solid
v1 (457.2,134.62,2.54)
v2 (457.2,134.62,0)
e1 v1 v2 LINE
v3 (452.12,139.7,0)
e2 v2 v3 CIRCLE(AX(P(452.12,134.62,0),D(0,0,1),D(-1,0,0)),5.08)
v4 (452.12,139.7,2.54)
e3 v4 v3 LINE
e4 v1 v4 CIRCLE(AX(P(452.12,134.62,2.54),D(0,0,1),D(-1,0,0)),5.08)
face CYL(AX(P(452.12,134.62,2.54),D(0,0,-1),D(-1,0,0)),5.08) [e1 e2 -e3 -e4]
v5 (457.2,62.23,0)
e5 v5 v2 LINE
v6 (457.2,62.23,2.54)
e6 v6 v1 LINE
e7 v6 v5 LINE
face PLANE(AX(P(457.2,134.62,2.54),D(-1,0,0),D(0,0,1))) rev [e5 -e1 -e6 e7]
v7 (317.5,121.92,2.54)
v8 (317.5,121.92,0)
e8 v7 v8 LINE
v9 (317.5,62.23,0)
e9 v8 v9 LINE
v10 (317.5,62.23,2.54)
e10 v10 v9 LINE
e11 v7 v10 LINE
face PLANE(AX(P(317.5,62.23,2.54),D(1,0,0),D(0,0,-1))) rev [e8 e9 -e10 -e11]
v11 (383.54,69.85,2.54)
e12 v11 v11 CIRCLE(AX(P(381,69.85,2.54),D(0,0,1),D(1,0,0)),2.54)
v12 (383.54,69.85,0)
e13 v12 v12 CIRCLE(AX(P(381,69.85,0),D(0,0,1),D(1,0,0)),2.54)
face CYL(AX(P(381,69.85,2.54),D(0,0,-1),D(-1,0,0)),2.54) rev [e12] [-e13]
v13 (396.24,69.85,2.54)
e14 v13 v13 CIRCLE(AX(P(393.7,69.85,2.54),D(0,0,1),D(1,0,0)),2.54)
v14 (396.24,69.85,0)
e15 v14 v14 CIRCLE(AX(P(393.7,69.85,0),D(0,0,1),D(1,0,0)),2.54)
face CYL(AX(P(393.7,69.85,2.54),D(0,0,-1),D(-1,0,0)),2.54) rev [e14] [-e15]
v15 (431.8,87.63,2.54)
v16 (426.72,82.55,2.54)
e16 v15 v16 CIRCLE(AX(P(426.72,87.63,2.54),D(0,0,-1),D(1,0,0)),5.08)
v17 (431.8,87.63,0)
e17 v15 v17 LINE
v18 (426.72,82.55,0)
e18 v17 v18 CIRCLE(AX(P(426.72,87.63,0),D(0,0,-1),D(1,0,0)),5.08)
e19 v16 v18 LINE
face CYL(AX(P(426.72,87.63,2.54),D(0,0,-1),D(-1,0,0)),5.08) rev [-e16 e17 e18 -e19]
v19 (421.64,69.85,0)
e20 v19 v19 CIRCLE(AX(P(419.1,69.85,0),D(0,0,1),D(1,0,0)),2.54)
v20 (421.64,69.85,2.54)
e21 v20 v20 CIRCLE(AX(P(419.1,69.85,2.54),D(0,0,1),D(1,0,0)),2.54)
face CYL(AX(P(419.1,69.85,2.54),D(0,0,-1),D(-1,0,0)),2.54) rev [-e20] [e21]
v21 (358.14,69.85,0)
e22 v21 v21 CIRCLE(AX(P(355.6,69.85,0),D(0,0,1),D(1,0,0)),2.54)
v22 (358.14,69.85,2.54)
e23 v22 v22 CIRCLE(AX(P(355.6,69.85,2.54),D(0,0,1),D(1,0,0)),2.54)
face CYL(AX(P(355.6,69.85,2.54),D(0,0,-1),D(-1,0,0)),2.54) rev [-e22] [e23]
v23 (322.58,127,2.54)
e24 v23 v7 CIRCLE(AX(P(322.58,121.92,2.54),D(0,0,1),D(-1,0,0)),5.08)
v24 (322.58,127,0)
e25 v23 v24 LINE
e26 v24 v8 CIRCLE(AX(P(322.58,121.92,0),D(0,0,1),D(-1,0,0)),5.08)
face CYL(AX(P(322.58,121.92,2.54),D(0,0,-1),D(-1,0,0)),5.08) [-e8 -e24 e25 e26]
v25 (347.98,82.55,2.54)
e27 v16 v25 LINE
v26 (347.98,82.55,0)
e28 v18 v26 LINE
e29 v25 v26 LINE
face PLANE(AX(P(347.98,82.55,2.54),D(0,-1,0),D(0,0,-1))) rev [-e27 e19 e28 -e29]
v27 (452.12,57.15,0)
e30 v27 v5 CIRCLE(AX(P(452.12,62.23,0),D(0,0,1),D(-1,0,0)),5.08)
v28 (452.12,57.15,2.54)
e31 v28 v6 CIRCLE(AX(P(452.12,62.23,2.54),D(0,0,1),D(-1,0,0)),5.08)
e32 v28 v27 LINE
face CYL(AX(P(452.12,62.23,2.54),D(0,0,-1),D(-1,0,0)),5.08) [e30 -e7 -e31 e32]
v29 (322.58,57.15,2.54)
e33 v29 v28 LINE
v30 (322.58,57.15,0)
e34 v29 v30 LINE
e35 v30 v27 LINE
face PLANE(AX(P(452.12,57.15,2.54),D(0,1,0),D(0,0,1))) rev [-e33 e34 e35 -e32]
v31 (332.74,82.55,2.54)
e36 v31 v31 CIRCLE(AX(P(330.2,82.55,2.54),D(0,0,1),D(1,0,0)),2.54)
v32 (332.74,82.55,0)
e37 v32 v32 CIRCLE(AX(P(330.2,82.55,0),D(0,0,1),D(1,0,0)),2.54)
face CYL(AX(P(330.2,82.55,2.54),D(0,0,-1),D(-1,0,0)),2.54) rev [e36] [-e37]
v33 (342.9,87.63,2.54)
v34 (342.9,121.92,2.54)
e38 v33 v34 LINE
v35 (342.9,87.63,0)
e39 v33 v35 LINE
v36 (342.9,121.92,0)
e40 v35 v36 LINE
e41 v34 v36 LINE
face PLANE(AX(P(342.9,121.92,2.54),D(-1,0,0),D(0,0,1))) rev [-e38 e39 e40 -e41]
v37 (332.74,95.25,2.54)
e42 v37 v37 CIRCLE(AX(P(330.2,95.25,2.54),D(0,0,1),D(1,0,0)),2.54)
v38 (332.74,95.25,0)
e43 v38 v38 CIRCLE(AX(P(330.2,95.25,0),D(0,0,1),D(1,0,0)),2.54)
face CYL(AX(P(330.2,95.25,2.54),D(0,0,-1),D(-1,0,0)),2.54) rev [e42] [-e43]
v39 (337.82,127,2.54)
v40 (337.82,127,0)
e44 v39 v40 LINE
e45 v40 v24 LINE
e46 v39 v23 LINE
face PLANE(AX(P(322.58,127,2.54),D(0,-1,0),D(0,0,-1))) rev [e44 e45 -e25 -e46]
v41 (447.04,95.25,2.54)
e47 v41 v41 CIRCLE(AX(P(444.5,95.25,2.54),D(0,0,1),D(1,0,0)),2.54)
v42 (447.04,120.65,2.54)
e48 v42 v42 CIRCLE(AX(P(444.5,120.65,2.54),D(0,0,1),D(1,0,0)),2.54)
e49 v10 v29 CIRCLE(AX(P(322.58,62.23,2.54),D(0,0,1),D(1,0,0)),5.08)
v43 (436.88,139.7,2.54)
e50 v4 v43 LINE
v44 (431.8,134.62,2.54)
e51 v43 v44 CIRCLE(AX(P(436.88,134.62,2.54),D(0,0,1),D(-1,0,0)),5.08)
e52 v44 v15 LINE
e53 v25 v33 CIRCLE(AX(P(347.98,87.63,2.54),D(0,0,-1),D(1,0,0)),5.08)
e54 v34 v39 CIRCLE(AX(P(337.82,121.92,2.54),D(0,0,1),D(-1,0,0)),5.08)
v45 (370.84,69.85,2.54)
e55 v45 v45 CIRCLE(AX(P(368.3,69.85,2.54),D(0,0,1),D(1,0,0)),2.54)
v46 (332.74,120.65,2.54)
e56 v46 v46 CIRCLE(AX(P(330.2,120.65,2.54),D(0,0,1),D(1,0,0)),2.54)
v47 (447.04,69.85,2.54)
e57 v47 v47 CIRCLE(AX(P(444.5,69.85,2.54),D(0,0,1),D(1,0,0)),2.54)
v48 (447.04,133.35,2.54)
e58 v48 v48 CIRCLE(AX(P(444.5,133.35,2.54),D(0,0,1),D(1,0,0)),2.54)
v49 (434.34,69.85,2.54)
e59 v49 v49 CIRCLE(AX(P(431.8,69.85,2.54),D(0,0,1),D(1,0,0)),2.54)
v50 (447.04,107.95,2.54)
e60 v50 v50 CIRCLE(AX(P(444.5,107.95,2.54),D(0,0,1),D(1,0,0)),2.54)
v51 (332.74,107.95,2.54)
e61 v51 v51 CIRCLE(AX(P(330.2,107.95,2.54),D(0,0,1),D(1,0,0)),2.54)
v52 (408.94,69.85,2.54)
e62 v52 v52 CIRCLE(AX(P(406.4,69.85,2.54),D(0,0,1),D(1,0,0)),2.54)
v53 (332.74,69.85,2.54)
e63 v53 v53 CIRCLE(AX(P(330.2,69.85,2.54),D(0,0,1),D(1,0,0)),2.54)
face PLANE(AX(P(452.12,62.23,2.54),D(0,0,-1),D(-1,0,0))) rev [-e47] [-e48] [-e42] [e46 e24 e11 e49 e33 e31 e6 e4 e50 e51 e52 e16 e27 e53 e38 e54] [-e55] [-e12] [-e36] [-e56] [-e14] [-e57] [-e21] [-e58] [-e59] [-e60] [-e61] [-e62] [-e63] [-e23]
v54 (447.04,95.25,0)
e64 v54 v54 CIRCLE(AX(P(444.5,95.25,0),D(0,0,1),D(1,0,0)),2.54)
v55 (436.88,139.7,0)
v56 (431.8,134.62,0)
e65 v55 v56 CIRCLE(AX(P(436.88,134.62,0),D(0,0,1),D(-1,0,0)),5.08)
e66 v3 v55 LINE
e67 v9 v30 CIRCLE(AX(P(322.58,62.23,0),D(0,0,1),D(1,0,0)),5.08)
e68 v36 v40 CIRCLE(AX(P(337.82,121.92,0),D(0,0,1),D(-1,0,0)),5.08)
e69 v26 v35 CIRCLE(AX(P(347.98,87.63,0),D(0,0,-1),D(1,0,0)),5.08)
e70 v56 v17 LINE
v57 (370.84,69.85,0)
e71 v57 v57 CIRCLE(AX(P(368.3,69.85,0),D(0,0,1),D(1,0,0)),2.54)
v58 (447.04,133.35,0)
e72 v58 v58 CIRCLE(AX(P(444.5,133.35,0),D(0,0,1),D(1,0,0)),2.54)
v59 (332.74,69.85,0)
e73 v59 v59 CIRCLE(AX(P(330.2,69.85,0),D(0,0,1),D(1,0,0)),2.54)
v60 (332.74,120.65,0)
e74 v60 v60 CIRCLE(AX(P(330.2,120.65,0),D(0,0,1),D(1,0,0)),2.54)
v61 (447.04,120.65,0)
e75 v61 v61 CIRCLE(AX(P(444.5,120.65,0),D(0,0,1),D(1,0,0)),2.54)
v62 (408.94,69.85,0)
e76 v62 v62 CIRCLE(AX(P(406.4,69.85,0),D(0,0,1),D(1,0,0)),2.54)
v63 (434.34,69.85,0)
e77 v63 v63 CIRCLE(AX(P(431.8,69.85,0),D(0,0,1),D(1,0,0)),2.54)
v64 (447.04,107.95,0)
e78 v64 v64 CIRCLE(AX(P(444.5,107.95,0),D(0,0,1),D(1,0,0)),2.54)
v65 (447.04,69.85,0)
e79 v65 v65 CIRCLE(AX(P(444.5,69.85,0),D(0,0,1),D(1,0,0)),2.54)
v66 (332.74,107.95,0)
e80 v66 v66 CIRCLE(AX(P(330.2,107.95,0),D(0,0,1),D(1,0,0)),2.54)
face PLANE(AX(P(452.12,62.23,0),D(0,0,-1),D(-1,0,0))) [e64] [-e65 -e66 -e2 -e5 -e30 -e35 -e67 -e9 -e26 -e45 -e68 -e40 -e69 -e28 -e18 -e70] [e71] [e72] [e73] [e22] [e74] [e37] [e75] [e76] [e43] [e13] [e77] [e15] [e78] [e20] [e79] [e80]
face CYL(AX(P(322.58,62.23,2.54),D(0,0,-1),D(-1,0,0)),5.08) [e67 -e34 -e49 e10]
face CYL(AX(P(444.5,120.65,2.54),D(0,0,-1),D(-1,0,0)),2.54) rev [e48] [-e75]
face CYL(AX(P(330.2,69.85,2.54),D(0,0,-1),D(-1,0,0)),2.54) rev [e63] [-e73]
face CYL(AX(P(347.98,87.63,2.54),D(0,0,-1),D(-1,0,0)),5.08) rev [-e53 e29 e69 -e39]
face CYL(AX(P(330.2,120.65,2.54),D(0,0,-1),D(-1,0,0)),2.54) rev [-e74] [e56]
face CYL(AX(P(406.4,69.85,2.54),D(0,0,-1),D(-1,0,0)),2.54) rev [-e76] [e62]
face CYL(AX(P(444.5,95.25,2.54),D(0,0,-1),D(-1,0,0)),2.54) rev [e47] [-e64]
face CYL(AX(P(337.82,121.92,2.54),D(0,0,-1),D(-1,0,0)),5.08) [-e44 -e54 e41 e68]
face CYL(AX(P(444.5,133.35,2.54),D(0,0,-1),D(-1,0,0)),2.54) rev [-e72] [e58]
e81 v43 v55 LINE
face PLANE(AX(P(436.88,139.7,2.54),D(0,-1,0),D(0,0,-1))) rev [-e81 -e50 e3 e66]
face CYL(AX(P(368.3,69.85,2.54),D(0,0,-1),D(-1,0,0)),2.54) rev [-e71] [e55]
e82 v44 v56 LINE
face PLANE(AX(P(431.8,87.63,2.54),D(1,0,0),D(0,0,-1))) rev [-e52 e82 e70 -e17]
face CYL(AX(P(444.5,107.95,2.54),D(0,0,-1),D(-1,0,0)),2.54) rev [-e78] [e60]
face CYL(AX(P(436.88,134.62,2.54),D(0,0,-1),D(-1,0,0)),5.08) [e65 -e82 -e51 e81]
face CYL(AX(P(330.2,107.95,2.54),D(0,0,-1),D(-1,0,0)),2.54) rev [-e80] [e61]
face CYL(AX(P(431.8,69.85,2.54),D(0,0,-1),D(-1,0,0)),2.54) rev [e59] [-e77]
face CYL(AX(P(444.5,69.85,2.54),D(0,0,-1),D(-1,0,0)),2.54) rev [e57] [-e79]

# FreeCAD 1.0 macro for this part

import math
import FreeCAD as App
import Part
import Sketcher
from FreeCAD import Vector
Q = App.Units.Quantity

doc = App.newDocument("Part")
params = doc.addObject("Spreadsheet::Sheet", "Params")
for row, (alias, value) in enumerate([
    ("sketch1_diameter", "0.2 in"),
    ("sketch1_radius", "0.2 in"),
    ("sketch1_width", "5.1 in"),
    ("sketch1_width2", "0.6 in"),
    ("sketch1_height", "2.35 in"),
    ("pad1_length", "0.1 in"),
], start=1):
    params.set(f"A{row}", alias)
    params.set(f"B{row}", "=" + value)
    params.setAlias(f"B{row}", alias)

body = doc.addObject("PartDesign::Body", "Body")

# Sketch on XY plane
sketch1 = body.newObject("Sketcher::SketchObject", "Sketch")
sketch1.AttachmentSupport = (doc.getObject("XY_Plane"), [""])
sketch1.MapMode = "FlatFace"
sketch1.addGeometry(Part.LineSegment(Vector(317.5, 121.9, 0), Vector(317.5, 62.2, 0)), False)
sketch1.addGeometry(Part.ArcOfCircle(Part.Circle(Vector(322.6, 62.2, 0), Vector(0, 0, 1), 5.1), math.radians(-180), math.radians(-90)), False)
sketch1.addGeometry(Part.LineSegment(Vector(322.6, 57.1, 0), Vector(452.1, 57.1, 0)), False)
sketch1.addGeometry(Part.ArcOfCircle(Part.Circle(Vector(452.1, 62.2, 0), Vector(0, 0, 1), 5.1), math.radians(-90), math.radians(0)), False)
sketch1.addGeometry(Part.LineSegment(Vector(457.2, 62.2, 0), Vector(457.2, 134.6, 0)), False)
sketch1.addGeometry(Part.ArcOfCircle(Part.Circle(Vector(452.1, 134.6, 0), Vector(0, 0, 1), 5.1), math.radians(0), math.radians(90)), False)
sketch1.addGeometry(Part.LineSegment(Vector(452.1, 139.7, 0), Vector(436.9, 139.7, 0)), False)
sketch1.addGeometry(Part.ArcOfCircle(Part.Circle(Vector(436.9, 134.6, 0), Vector(0, 0, 1), 5.1), math.radians(90), math.radians(180)), False)
sketch1.addGeometry(Part.LineSegment(Vector(431.8, 134.6, 0), Vector(431.8, 87.6, 0)), False)
sketch1.addGeometry(Part.ArcOfCircle(Part.Circle(Vector(426.7, 87.6, 0), Vector(0, 0, 1), 5.1), math.radians(-90), math.radians(0)), False)
sketch1.addGeometry(Part.LineSegment(Vector(426.7, 82.5, 0), Vector(348, 82.5, 0)), False)
sketch1.addGeometry(Part.ArcOfCircle(Part.Circle(Vector(348, 87.6, 0), Vector(0, 0, 1), 5.1), math.radians(-180), math.radians(-90)), False)
sketch1.addGeometry(Part.LineSegment(Vector(342.9, 87.6, 0), Vector(342.9, 121.9, 0)), False)
sketch1.addGeometry(Part.ArcOfCircle(Part.Circle(Vector(337.8, 121.9, 0), Vector(0, 0, 1), 5.1), math.radians(0), math.radians(90)), False)
sketch1.addGeometry(Part.LineSegment(Vector(337.8, 127, 0), Vector(322.6, 127, 0)), False)
sketch1.addGeometry(Part.ArcOfCircle(Part.Circle(Vector(322.6, 121.9, 0), Vector(0, 0, 1), 5.1), math.radians(90), math.radians(180)), False)
sketch1.addGeometry(Part.Circle(Vector(444.5, 69.8, 0), Vector(0, 0, 1), 2.5), False)
sketch1.addGeometry(Part.Circle(Vector(431.8, 69.8, 0), Vector(0, 0, 1), 2.5), False)
sketch1.addGeometry(Part.Circle(Vector(419.1, 69.8, 0), Vector(0, 0, 1), 2.5), False)
sketch1.addGeometry(Part.Circle(Vector(406.4, 69.8, 0), Vector(0, 0, 1), 2.5), False)
sketch1.addGeometry(Part.Circle(Vector(393.7, 69.8, 0), Vector(0, 0, 1), 2.5), False)
sketch1.addGeometry(Part.Circle(Vector(444.5, 95.2, 0), Vector(0, 0, 1), 2.5), False)
sketch1.addGeometry(Part.Circle(Vector(381, 69.8, 0), Vector(0, 0, 1), 2.5), False)
sketch1.addGeometry(Part.Circle(Vector(368.3, 69.8, 0), Vector(0, 0, 1), 2.5), False)
sketch1.addGeometry(Part.Circle(Vector(355.6, 69.8, 0), Vector(0, 0, 1), 2.5), False)
sketch1.addGeometry(Part.Circle(Vector(330.2, 69.8, 0), Vector(0, 0, 1), 2.5), False)
sketch1.addGeometry(Part.Circle(Vector(330.2, 82.5, 0), Vector(0, 0, 1), 2.5), False)
sketch1.addGeometry(Part.Circle(Vector(330.2, 95.2, 0), Vector(0, 0, 1), 2.5), False)
sketch1.addGeometry(Part.Circle(Vector(444.5, 108, 0), Vector(0, 0, 1), 2.5), False)
sketch1.addGeometry(Part.Circle(Vector(444.5, 120.7, 0), Vector(0, 0, 1), 2.5), False)
sketch1.addGeometry(Part.Circle(Vector(444.5, 133.3, 0), Vector(0, 0, 1), 2.5), False)
sketch1.addGeometry(Part.Circle(Vector(330.2, 108, 0), Vector(0, 0, 1), 2.5), False)
sketch1.addGeometry(Part.Circle(Vector(330.2, 120.7, 0), Vector(0, 0, 1), 2.5), False)
sketch1.addConstraint(Sketcher.Constraint("Tangent", 0, 2, 1, 1))
sketch1.addConstraint(Sketcher.Constraint("Tangent", 1, 2, 2, 1))
sketch1.addConstraint(Sketcher.Constraint("Tangent", 2, 2, 3, 1))
sketch1.addConstraint(Sketcher.Constraint("Tangent", 3, 2, 4, 1))
sketch1.addConstraint(Sketcher.Constraint("Tangent", 4, 2, 5, 1))
sketch1.addConstraint(Sketcher.Constraint("Tangent", 5, 2, 6, 1))
sketch1.addConstraint(Sketcher.Constraint("Tangent", 6, 2, 7, 1))
sketch1.addConstraint(Sketcher.Constraint("Tangent", 7, 2, 8, 1))
sketch1.addConstraint(Sketcher.Constraint("Tangent", 8, 2, 9, 2))
sketch1.addConstraint(Sketcher.Constraint("Tangent", 9, 1, 10, 1))
sketch1.addConstraint(Sketcher.Constraint("Tangent", 10, 2, 11, 2))
sketch1.addConstraint(Sketcher.Constraint("Tangent", 11, 1, 12, 1))
sketch1.addConstraint(Sketcher.Constraint("Tangent", 12, 2, 13, 1))
sketch1.addConstraint(Sketcher.Constraint("Tangent", 13, 2, 14, 1))
sketch1.addConstraint(Sketcher.Constraint("Tangent", 14, 2, 15, 1))
sketch1.addConstraint(Sketcher.Constraint("Tangent", 15, 2, 0, 1))
sketch1.addConstraint(Sketcher.Constraint("Vertical", 0))
sketch1.addConstraint(Sketcher.Constraint("Horizontal", 2))
sketch1.addConstraint(Sketcher.Constraint("Vertical", 4))
sketch1.addConstraint(Sketcher.Constraint("Horizontal", 6))
sketch1.addConstraint(Sketcher.Constraint("Vertical", 8))
sketch1.addConstraint(Sketcher.Constraint("Horizontal", 10))
sketch1.addConstraint(Sketcher.Constraint("Vertical", 12))
sketch1.addConstraint(Sketcher.Constraint("Horizontal", 14))
sketch1.addConstraint(Sketcher.Constraint("Equal", 1, 3))
sketch1.addConstraint(Sketcher.Constraint("Equal", 3, 5))
sketch1.addConstraint(Sketcher.Constraint("Equal", 5, 7))
sketch1.addConstraint(Sketcher.Constraint("Equal", 7, 9))
sketch1.addConstraint(Sketcher.Constraint("Equal", 9, 11))
sketch1.addConstraint(Sketcher.Constraint("Equal", 11, 13))
sketch1.addConstraint(Sketcher.Constraint("Equal", 13, 15))
sketch1.addConstraint(Sketcher.Constraint("Equal", 16, 17))
sketch1.addConstraint(Sketcher.Constraint("Equal", 17, 18))
sketch1.addConstraint(Sketcher.Constraint("Equal", 18, 19))
sketch1.addConstraint(Sketcher.Constraint("Equal", 19, 20))
sketch1.addConstraint(Sketcher.Constraint("Equal", 20, 21))
sketch1.addConstraint(Sketcher.Constraint("Equal", 21, 22))
sketch1.addConstraint(Sketcher.Constraint("Equal", 22, 23))
sketch1.addConstraint(Sketcher.Constraint("Equal", 23, 24))
sketch1.addConstraint(Sketcher.Constraint("Equal", 24, 25))
sketch1.addConstraint(Sketcher.Constraint("Equal", 25, 26))
sketch1.addConstraint(Sketcher.Constraint("Equal", 26, 27))
sketch1.addConstraint(Sketcher.Constraint("Equal", 27, 28))
sketch1.addConstraint(Sketcher.Constraint("Equal", 28, 29))
sketch1.addConstraint(Sketcher.Constraint("Equal", 29, 30))
sketch1.addConstraint(Sketcher.Constraint("Equal", 30, 31))
sketch1.addConstraint(Sketcher.Constraint("Equal", 31, 32))
sketch1.addConstraint(Sketcher.Constraint("Horizontal", 16, 3, 17, 3))
sketch1.addConstraint(Sketcher.Constraint("Horizontal", 17, 3, 18, 3))
sketch1.addConstraint(Sketcher.Constraint("Horizontal", 18, 3, 19, 3))
sketch1.addConstraint(Sketcher.Constraint("Horizontal", 19, 3, 20, 3))
sketch1.addConstraint(Sketcher.Constraint("Horizontal", 20, 3, 22, 3))
sketch1.addConstraint(Sketcher.Constraint("Horizontal", 22, 3, 23, 3))
sketch1.addConstraint(Sketcher.Constraint("Horizontal", 23, 3, 24, 3))
sketch1.addConstraint(Sketcher.Constraint("Horizontal", 24, 3, 25, 3))
sketch1.addConstraint(Sketcher.Constraint("Horizontal", 21, 3, 27, 3))
sketch1.addConstraint(Sketcher.Constraint("Horizontal", 28, 3, 31, 3))
sketch1.addConstraint(Sketcher.Constraint("Horizontal", 29, 3, 32, 3))
sketch1.addConstraint(Sketcher.Constraint("Horizontal", 26, 3, 9, 1))
sketch1.addConstraint(Sketcher.Constraint("Vertical", 16, 3, 21, 3))
sketch1.addConstraint(Sketcher.Constraint("Vertical", 25, 3, 26, 3))
sketch1.addConstraint(Sketcher.Constraint("Vertical", 26, 3, 27, 3))
sketch1.addConstraint(Sketcher.Constraint("Vertical", 21, 3, 28, 3))
sketch1.addConstraint(Sketcher.Constraint("Vertical", 28, 3, 29, 3))
sketch1.addConstraint(Sketcher.Constraint("Vertical", 29, 3, 30, 3))
sketch1.addConstraint(Sketcher.Constraint("Vertical", 27, 3, 31, 3))
sketch1.addConstraint(Sketcher.Constraint("Vertical", 31, 3, 32, 3))
sketch1.addConstraint(Sketcher.Constraint("Vertical", 17, 3, 7, 2))
sketch1.addConstraint(Sketcher.Constraint("Equal", 6, 14))
sketch1.addConstraint(Sketcher.Constraint("Diameter", 16, Q("0.2 in")))
sketch1.addConstraint(Sketcher.Constraint("Radius", 1, Q("0.2 in")))
sketch1.addConstraint(Sketcher.Constraint("DistanceX", 2, 1, 2, 2, Q("5.1 in")))
sketch1.addConstraint(Sketcher.Constraint("DistanceX", 6, 2, 6, 1, Q("0.6 in")))
sketch1.addConstraint(Sketcher.Constraint("DistanceX", -1, 1, 17, 3, Q("17 in")))
sketch1.addConstraint(Sketcher.Constraint("DistanceX", -1, 1, 19, 3, Q("16 in")))
sketch1.addConstraint(Sketcher.Constraint("DistanceX", -1, 1, 22, 3, Q("15 in")))
sketch1.addConstraint(Sketcher.Constraint("DistanceX", -1, 1, 24, 3, Q("14 in")))
sketch1.addConstraint(Sketcher.Constraint("DistanceX", -1, 1, 25, 3, Q("13 in")))
sketch1.addConstraint(Sketcher.Constraint("DistanceY", -1, 1, 13, 2, Q("5 in")))
sketch1.addConstraint(Sketcher.Constraint("DistanceY", 3, 3, 9, 3, Q("1 in")))
sketch1.addConstraint(Sketcher.Constraint("DistanceX", 18, 3, 16, 3, Q("1 in")))
sketch1.addConstraint(Sketcher.Constraint("DistanceX", 20, 3, 18, 3, Q("1 in")))
sketch1.addConstraint(Sketcher.Constraint("DistanceY", 16, 3, 21, 3, Q("1 in")))
sketch1.addConstraint(Sketcher.Constraint("DistanceX", 23, 3, 20, 3, Q("1 in")))
sketch1.addConstraint(Sketcher.Constraint("DistanceY", 21, 3, 29, 3, Q("1 in")))
sketch1.addConstraint(Sketcher.Constraint("DistanceY", 28, 3, 30, 3, Q("1 in")))
sketch1.addConstraint(Sketcher.Constraint("DistanceY", 26, 3, 31, 3, Q("1 in")))
sketch1.addConstraint(Sketcher.Constraint("DistanceY", 0, 2, 0, 1, Q("2.35 in")))
sketch1.addConstraint(Sketcher.Constraint("DistanceY", 4, 1, 4, 2, Q("2.85 in")))
sketch1.addConstraint(Sketcher.Constraint("DistanceX", -1, 1, 16, 3, Q("17.5 in")))
sketch1.addConstraint(Sketcher.Constraint("DistanceY", 3, 3, 16, 3, Q("0.3 in")))
sketch1.setExpression("Constraints[69]", "Params.sketch1_diameter")
sketch1.setExpression("Constraints[70]", "Params.sketch1_radius")
sketch1.setExpression("Constraints[71]", "Params.sketch1_width")
sketch1.setExpression("Constraints[72]", "Params.sketch1_width2")
sketch1.setExpression("Constraints[87]", "Params.sketch1_height")
pad1 = body.newObject("PartDesign::Pad", "Pad")
pad1.Profile = sketch1
pad1.setExpression("Length", "Params.pad1_length")

doc.recompute()
